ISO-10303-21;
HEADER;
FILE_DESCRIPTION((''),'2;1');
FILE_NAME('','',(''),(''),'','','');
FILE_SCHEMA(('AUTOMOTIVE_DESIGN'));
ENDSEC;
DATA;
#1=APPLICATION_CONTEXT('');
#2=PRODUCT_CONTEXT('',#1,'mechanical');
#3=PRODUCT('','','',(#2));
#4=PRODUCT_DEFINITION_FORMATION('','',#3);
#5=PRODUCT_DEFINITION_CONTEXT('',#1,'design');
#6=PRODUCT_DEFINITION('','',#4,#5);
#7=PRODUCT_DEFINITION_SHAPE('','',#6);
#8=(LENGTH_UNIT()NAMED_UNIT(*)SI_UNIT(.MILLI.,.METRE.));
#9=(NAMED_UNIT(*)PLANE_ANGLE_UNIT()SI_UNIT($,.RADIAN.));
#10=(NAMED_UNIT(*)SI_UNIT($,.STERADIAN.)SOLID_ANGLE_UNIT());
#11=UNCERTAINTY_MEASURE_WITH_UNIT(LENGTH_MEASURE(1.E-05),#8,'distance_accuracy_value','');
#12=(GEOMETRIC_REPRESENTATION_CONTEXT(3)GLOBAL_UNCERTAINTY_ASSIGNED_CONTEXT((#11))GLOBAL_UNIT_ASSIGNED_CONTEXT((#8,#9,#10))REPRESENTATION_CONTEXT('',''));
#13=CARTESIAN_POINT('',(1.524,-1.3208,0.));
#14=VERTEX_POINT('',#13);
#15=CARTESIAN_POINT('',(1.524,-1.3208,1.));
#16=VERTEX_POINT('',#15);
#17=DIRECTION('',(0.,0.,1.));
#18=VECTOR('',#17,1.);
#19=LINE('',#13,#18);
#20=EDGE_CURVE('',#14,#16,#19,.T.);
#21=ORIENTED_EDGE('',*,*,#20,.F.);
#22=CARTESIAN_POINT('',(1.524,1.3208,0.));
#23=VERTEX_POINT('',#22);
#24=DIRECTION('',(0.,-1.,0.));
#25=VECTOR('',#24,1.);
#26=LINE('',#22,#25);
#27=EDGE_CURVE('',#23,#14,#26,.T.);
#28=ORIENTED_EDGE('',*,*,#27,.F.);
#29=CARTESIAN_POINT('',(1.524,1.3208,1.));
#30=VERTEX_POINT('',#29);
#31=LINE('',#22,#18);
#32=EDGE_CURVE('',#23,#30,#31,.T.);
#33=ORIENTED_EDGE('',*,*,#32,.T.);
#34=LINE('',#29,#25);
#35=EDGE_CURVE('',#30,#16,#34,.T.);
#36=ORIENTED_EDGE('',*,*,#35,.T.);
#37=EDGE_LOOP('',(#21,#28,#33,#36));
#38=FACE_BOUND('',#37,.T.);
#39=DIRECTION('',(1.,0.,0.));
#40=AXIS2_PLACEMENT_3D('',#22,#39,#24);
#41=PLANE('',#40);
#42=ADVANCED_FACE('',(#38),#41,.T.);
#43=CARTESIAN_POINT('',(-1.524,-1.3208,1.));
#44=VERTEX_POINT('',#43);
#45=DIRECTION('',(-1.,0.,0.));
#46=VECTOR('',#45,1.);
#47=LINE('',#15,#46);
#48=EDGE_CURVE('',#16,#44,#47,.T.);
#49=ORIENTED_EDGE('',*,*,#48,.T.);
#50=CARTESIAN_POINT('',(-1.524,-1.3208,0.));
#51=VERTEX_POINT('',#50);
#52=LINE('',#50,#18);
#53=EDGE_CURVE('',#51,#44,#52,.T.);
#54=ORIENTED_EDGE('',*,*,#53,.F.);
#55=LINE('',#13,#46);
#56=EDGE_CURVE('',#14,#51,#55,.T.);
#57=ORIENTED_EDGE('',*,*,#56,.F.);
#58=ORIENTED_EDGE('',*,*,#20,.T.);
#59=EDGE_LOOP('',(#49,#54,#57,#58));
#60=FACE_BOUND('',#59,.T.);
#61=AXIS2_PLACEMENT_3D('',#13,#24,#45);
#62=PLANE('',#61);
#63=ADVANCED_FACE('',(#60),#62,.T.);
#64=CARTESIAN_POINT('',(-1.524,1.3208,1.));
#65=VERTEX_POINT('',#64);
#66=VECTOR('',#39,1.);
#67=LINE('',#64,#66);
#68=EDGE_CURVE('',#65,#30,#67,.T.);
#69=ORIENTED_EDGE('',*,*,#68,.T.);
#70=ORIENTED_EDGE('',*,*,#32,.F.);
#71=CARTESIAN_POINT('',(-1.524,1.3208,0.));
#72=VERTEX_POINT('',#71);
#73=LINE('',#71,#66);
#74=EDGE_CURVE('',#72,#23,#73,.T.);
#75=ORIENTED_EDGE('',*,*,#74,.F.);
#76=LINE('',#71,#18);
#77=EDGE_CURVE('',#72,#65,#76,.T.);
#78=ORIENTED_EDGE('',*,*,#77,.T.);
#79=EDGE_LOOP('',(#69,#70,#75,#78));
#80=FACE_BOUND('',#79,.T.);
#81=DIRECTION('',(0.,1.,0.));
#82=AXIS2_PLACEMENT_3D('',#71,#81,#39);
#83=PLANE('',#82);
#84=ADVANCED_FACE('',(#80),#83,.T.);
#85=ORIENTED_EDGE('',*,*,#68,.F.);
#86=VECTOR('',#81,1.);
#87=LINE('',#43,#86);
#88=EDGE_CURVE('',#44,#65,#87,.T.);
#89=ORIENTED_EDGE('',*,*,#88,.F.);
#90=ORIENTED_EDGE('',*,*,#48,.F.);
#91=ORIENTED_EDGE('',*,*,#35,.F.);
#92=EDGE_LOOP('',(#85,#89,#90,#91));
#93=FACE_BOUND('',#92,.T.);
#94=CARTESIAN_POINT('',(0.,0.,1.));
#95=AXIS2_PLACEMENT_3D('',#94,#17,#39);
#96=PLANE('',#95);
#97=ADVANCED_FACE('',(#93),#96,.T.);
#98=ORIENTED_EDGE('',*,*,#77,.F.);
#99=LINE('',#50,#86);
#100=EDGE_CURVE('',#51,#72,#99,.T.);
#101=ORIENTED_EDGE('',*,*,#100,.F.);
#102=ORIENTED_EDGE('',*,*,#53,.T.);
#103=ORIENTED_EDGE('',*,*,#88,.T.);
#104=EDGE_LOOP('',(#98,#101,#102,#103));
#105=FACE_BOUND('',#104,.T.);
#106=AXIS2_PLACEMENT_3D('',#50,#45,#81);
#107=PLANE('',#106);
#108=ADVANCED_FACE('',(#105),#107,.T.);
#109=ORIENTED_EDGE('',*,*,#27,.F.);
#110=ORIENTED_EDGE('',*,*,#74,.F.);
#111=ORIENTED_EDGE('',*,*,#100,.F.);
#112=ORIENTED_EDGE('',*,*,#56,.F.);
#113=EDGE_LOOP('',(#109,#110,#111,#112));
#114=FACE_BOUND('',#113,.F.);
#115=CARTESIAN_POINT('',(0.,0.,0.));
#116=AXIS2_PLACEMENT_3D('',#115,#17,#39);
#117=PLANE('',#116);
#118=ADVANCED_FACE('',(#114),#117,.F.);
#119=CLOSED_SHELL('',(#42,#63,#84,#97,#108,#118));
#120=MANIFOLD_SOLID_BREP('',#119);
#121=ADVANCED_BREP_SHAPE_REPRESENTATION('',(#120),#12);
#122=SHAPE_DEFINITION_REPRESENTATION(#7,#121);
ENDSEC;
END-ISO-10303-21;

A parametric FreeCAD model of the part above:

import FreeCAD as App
import Part
import Sketcher
from FreeCAD import Vector
Q = App.Units.Quantity


def add_polygon(sketch, points):
    """Adds a closed chain of lines whose ends are joined by coincident constraints."""
    first, n = sketch.GeometryCount, len(points)
    for a, b in zip(points, points[1:] + points[:1]):
        sketch.addGeometry(Part.LineSegment(App.Vector(*a, 0), App.Vector(*b, 0)), False)
    for i in range(n):
        sketch.addConstraint(Sketcher.Constraint("Coincident", first + i, 2, first + (i + 1) % n, 1))

doc = App.newDocument("Part")
body = doc.addObject("PartDesign::Body", "Body")

sketch1 = body.newObject("Sketcher::SketchObject", "Sketch")
sketch1.AttachmentSupport = (doc.getObject("XY_Plane"), [""])
sketch1.MapMode = "FlatFace"
add_polygon(sketch1, [(1.5, 1.3), (-1.5, 1.3), (-1.5, -1.3), (1.5, -1.3)])
sketch1.addConstraint([
    Sketcher.Constraint("Horizontal", 0),
    Sketcher.Constraint("Vertical", 1),
    Sketcher.Constraint("Horizontal", 2),
    Sketcher.Constraint("Vertical", 3),
    Sketcher.Constraint("Symmetric", 0, 2, 2, 2, -1, 1),
    Sketcher.Constraint("DistanceX", 0, 2, 0, 1, Q("0.12 in")),
    Sketcher.Constraint("DistanceY", 1, 2, 1, 1, Q("0.104 in")),
])
pad1 = body.newObject("PartDesign::Pad", "Pad")
pad1.Profile = sketch1
pad1.Length = 1

doc.recompute()
